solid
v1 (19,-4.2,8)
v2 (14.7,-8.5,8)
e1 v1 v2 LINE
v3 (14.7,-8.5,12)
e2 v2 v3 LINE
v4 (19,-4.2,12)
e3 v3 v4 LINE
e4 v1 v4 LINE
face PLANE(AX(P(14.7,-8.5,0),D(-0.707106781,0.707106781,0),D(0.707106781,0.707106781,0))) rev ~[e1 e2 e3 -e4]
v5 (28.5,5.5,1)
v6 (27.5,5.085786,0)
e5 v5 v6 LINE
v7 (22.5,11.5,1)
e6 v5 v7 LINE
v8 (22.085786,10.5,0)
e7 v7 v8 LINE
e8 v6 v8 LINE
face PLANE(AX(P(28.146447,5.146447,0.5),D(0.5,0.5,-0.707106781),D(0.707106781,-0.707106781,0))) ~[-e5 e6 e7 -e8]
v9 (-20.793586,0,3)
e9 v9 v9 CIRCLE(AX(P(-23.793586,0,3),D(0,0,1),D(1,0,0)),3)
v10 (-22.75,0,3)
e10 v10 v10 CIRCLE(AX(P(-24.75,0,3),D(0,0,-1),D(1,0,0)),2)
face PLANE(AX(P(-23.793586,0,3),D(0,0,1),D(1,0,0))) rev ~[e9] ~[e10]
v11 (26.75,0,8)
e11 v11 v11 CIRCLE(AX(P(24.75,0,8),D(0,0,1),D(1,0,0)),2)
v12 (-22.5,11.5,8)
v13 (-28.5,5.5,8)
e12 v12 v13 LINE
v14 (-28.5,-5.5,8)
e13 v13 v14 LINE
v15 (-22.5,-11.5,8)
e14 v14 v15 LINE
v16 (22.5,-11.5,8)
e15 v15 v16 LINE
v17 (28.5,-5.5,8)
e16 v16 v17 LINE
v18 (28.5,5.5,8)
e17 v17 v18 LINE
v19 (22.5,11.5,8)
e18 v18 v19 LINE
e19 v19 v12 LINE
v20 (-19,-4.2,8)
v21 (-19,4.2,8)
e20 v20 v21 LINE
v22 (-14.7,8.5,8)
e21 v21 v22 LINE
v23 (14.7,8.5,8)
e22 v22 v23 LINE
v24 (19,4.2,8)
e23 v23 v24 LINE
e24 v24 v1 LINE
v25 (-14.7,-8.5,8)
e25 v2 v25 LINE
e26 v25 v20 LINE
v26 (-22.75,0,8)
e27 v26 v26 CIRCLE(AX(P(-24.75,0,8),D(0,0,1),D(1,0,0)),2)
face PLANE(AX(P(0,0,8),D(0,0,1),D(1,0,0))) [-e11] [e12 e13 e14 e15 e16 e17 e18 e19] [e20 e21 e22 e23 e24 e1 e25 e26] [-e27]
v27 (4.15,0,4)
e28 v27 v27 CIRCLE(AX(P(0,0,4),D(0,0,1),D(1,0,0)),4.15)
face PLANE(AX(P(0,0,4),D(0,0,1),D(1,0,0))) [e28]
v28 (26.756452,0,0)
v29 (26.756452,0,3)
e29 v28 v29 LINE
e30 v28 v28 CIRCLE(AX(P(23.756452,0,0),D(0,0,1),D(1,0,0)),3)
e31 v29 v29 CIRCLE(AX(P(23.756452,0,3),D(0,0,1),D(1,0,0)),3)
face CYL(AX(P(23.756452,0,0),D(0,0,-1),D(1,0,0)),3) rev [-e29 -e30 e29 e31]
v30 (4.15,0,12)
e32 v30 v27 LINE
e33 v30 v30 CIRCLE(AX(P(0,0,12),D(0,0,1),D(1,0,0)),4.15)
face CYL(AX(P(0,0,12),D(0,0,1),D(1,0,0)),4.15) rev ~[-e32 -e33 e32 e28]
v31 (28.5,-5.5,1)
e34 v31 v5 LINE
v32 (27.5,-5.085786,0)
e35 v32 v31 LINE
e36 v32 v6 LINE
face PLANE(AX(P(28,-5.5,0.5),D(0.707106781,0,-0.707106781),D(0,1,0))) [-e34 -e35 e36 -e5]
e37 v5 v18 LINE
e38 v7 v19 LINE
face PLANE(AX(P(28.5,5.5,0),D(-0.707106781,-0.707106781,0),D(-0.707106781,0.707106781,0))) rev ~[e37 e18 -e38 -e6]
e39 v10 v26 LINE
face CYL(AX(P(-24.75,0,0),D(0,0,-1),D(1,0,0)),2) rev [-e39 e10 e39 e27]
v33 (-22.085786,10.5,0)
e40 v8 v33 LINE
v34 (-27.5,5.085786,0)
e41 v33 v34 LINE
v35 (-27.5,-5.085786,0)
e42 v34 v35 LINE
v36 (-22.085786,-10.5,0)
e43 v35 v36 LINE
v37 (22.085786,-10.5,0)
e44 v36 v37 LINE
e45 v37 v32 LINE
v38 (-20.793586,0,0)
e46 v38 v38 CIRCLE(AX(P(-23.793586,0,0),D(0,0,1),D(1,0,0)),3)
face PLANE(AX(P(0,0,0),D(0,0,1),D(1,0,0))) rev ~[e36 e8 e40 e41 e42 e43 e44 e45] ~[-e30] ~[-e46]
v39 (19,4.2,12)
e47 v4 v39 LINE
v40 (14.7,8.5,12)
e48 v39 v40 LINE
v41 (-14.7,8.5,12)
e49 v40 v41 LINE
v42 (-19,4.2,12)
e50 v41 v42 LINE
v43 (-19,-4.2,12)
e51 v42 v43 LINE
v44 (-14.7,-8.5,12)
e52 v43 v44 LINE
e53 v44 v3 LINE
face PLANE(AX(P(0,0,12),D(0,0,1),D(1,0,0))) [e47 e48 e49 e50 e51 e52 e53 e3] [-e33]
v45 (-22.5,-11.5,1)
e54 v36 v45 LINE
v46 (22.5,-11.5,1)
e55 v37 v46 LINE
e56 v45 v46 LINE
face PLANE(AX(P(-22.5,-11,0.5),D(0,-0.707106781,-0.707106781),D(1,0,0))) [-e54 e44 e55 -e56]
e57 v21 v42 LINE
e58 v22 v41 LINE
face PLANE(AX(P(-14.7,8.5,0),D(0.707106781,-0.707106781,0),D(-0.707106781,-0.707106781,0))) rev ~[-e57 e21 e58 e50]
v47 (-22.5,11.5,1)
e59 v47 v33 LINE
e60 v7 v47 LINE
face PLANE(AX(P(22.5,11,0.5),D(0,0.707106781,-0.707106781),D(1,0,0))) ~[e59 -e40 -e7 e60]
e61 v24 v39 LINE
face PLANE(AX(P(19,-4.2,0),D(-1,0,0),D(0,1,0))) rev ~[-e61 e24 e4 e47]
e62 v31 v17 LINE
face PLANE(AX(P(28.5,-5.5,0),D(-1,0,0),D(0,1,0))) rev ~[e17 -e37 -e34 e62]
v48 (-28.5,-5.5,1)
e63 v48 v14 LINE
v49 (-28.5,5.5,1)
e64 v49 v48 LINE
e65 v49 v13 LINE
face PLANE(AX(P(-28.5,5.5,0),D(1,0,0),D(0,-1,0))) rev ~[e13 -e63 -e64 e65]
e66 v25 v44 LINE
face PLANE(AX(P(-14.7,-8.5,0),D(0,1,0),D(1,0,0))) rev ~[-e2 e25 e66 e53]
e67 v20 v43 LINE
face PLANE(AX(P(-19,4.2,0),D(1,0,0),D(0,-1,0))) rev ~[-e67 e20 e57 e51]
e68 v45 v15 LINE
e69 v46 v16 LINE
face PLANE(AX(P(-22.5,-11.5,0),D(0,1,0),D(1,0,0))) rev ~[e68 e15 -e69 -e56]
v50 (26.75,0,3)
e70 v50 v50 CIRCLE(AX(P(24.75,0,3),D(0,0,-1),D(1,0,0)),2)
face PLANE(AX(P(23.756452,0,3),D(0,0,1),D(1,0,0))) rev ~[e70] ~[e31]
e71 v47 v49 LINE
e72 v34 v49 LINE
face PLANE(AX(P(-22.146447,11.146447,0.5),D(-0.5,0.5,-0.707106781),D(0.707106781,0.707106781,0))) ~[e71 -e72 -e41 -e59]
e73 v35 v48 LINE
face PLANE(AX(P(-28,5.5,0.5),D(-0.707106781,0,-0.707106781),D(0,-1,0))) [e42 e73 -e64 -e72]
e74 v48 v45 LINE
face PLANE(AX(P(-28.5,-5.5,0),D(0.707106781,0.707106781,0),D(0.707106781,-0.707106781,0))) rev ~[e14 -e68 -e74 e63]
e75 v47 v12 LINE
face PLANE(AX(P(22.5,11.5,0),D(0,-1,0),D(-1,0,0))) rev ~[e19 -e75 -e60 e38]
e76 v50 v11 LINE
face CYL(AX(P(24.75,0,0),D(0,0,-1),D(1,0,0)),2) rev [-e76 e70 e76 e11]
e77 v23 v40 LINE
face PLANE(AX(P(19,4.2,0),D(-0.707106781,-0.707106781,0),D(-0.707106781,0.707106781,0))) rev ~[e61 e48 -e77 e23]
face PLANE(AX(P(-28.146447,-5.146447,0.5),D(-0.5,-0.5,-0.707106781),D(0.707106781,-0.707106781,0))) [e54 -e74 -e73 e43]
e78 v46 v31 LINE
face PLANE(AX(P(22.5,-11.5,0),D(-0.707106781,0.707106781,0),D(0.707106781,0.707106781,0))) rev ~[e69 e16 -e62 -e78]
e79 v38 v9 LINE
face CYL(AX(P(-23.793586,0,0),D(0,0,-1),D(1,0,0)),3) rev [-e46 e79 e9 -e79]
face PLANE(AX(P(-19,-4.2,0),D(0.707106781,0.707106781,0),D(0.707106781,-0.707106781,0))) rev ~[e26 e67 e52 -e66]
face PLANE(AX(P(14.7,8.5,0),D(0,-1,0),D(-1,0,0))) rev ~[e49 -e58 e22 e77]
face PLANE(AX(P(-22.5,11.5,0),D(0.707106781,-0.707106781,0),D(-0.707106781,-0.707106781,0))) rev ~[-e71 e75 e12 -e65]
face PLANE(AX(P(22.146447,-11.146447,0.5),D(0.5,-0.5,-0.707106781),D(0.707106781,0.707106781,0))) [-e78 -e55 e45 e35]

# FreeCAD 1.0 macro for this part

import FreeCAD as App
import Part
import Sketcher

V = App.Vector
Q = App.Units.Quantity


def edges_at(feature, points):
    """Names of the edges that pass closest to the given points."""
    edges = feature.Shape.Edges
    near = lambda p: min(range(len(edges)), key=lambda i: edges[i].distToShape(Part.Vertex(*p))[0])
    return sorted({f"Edge{near(p) + 1}" for p in points})


def add_polygon(sketch, points):
    """Adds a closed chain of lines whose ends are joined by coincident constraints."""
    first, n = sketch.GeometryCount, len(points)
    for a, b in zip(points, points[1:] + points[:1]):
        sketch.addGeometry(Part.LineSegment(App.Vector(*a, 0), App.Vector(*b, 0)), False)
    for i in range(n):
        sketch.addConstraint(Sketcher.Constraint("Coincident", first + i, 2, first + (i + 1) % n, 1))

doc = App.newDocument("Part")
body = doc.addObject("PartDesign::Body", "Body")

# Sketch on XY plane
sketch1 = body.newObject("Sketcher::SketchObject", "Sketch")
sketch1.AttachmentSupport = (doc.getObject("XY_Plane"), [""])
sketch1.MapMode = "FlatFace"
add_polygon(sketch1, [(15, 8), (-15, 8), (-19, 4), (-19, -4), (-15, -8), (15, -8), (19, -4), (19, 4)])  # lines 0-7
sketch1.addConstraint([
    Sketcher.Constraint("Horizontal", 0),
    Sketcher.Constraint("Vertical", 2),
    Sketcher.Constraint("Horizontal", 4),
    Sketcher.Constraint("Vertical", 6),
    Sketcher.Constraint("Symmetric", 0, 2, 4, 2, -1, 1),
    Sketcher.Constraint("Symmetric", 1, 2, 5, 2, -1, 1),
    Sketcher.Constraint("Perpendicular", 1, 3),
    Sketcher.Constraint("Perpendicular", 5, 7),
    Sketcher.Constraint("Horizontal", 2, 2, 5, 2),
    Sketcher.Constraint("Horizontal", 1, 2, 6, 2),
    Sketcher.Constraint("Vertical", 0, 2, 3, 2),
    Sketcher.Constraint("DistanceX", 0, 2, 0, 1, Q("29.4 mm")),
    Sketcher.Constraint("DistanceY", 2, 2, 2, 1, Q("8.4 mm")),
    Sketcher.Constraint("DistanceX", 1, 2, -1, 1, Q("19 mm")),
])
pad1 = body.newObject("PartDesign::Pad", "Pad")
pad1.Profile = sketch1
pad1.Length = 12

# Sketch on XY plane
sketch2 = body.newObject("Sketcher::SketchObject", "Sketch001")
sketch2.AttachmentSupport = (doc.getObject("XY_Plane"), [""])
sketch2.MapMode = "FlatFace"
add_polygon(sketch2, [(22.5, 11.5), (-22.5, 11.5), (-28.5, 5.5), (-28.5, -5.5), (-22.5, -11.5), (22.5, -11.5), (28.5, -5.5), (28.5, 5.5)])  # lines 0-7
sketch2.addGeometry(Part.Circle(V(-24.8, 0, 0), V(0, 0, 1), 2), False)  # 8
add_polygon(sketch2, [(-19, -4.2), (-19, 4.2), (-14.7, 8.5), (14.7, 8.5), (19, 4.2), (19, -4.2), (14.7, -8.5), (-14.7, -8.5)])  # lines 9-16
sketch2.addGeometry(Part.Circle(V(24.8, 0, 0), V(0, 0, 1), 2), False)  # 17
sketch2.addConstraint([
    Sketcher.Constraint("Horizontal", 0),
    Sketcher.Constraint("Vertical", 2),
    Sketcher.Constraint("Horizontal", 4),
    Sketcher.Constraint("Vertical", 6),
    Sketcher.Constraint("Vertical", 9),
    Sketcher.Constraint("Horizontal", 11),
    Sketcher.Constraint("Vertical", 13),
    Sketcher.Constraint("Horizontal", 15),
    Sketcher.Constraint("Equal", 8, 17),
    Sketcher.Constraint("Symmetric", 8, 3, 17, 3, -1, 1),
    Sketcher.Constraint("Symmetric", 0, 2, 4, 2, -1, 1),
    Sketcher.Constraint("Symmetric", 1, 2, 5, 2, -1, 1),
    Sketcher.Constraint("Symmetric", 9, 2, 13, 2, -1, 1),
    Sketcher.Constraint("Symmetric", 10, 2, 14, 2, -1, 1),
    Sketcher.Constraint("PointOnObject", 8, 3, -1),
    Sketcher.Constraint("Perpendicular", 1, 3),
    Sketcher.Constraint("Perpendicular", 5, 7),
    Sketcher.Constraint("Perpendicular", 7, 10),
    Sketcher.Constraint("Perpendicular", 10, 12),
    Sketcher.Constraint("Perpendicular", 14, 16),
    Sketcher.Constraint("Horizontal", 2, 2, 5, 2),
    Sketcher.Constraint("Horizontal", 1, 2, 6, 2),
    Sketcher.Constraint("Horizontal", 9, 2, 12, 2),
    Sketcher.Constraint("Horizontal", 13, 2, 16, 2),
    Sketcher.Constraint("Vertical", 0, 2, 3, 2),
    Sketcher.Constraint("Diameter", 8, Q("4 mm")),
    Sketcher.Constraint("DistanceX", 0, 2, 0, 1, Q("45 mm")),
    Sketcher.Constraint("DistanceY", 2, 2, 2, 1, Q("11 mm")),
    Sketcher.Constraint("DistanceX", 11, 1, 11, 2, Q("29.4 mm")),
    Sketcher.Constraint("DistanceY", 9, 1, 9, 2, Q("8.4 mm")),
    Sketcher.Constraint("DistanceX", 9, 2, -1, 1, Q("19 mm")),
    Sketcher.Constraint("DistanceX", 1, 2, 0, 2, Q("6 mm")),
    Sketcher.Constraint("DistanceX", 8, 3, 17, 3, Q("49.5 mm")),
])
pad2 = body.newObject("PartDesign::Pad", "Pad001")
pad2.Profile = sketch2
pad2.Length = 8
doc.recompute()

chamfer = body.newObject("PartDesign::Chamfer", "Chamfer")
chamfer.Base = (pad2, edges_at(pad2, [
    (0, -11.5, 0),
    (-25.5, -8.5, 0),
    (-28.5, 0, 0),
    (-25.5, 8.5, 0),
    (0, 11.5, 0),
    (25.5, 8.5, 0),
    (28.5, 0, 0),
    (25.5, -8.5, 0),
]))
chamfer.Size = 1

# Sketch on XY plane
sketch3 = body.newObject("Sketcher::SketchObject", "Sketch002")
sketch3.AttachmentSupport = (doc.getObject("XY_Plane"), [""])
sketch3.MapMode = "FlatFace"
sketch3.AttachmentOffset = App.Placement(V(0, 0, 12), App.Rotation())
sketch3.addGeometry(Part.Circle(V(0, 0, 0), V(0, 0, 1), 4.2), False)
sketch3.addConstraint([
    Sketcher.Constraint("Coincident", 0, 3, -1, 1),
    Sketcher.Constraint("Diameter", 0, Q("8.3 mm")),
])
pocket1 = body.newObject("PartDesign::Pocket", "Pocket")
pocket1.Profile = sketch3
pocket1.Length = 8

# Sketch on XY plane
sketch4 = body.newObject("Sketcher::SketchObject", "Sketch003")
sketch4.AttachmentSupport = (doc.getObject("XY_Plane"), [""])
sketch4.MapMode = "FlatFace"
sketch4.addGeometry([
    Part.Circle(V(-23.8, 0, 0), V(0, 0, 1), 3),
    Part.Circle(V(23.8, 0, 0), V(0, 0, 1), 3),
], False)
sketch4.addConstraint([
    Sketcher.Constraint("Equal", 0, 1),
    Sketcher.Constraint("PointOnObject", 0, 3, -1),
    Sketcher.Constraint("PointOnObject", 1, 3, -1),
    Sketcher.Constraint("Diameter", 0, Q("6 mm")),
    Sketcher.Constraint("DistanceX", -1, 1, 1, 3, Q("23.756452 mm")),
    Sketcher.Constraint("DistanceX", 0, 3, -1, 1, Q("23.793586 mm")),
])
pocket2 = body.newObject("PartDesign::Pocket", "Pocket001")
pocket2.Profile = sketch4
pocket2.Length = 3
pocket2.Reversed = True

doc.recompute()
